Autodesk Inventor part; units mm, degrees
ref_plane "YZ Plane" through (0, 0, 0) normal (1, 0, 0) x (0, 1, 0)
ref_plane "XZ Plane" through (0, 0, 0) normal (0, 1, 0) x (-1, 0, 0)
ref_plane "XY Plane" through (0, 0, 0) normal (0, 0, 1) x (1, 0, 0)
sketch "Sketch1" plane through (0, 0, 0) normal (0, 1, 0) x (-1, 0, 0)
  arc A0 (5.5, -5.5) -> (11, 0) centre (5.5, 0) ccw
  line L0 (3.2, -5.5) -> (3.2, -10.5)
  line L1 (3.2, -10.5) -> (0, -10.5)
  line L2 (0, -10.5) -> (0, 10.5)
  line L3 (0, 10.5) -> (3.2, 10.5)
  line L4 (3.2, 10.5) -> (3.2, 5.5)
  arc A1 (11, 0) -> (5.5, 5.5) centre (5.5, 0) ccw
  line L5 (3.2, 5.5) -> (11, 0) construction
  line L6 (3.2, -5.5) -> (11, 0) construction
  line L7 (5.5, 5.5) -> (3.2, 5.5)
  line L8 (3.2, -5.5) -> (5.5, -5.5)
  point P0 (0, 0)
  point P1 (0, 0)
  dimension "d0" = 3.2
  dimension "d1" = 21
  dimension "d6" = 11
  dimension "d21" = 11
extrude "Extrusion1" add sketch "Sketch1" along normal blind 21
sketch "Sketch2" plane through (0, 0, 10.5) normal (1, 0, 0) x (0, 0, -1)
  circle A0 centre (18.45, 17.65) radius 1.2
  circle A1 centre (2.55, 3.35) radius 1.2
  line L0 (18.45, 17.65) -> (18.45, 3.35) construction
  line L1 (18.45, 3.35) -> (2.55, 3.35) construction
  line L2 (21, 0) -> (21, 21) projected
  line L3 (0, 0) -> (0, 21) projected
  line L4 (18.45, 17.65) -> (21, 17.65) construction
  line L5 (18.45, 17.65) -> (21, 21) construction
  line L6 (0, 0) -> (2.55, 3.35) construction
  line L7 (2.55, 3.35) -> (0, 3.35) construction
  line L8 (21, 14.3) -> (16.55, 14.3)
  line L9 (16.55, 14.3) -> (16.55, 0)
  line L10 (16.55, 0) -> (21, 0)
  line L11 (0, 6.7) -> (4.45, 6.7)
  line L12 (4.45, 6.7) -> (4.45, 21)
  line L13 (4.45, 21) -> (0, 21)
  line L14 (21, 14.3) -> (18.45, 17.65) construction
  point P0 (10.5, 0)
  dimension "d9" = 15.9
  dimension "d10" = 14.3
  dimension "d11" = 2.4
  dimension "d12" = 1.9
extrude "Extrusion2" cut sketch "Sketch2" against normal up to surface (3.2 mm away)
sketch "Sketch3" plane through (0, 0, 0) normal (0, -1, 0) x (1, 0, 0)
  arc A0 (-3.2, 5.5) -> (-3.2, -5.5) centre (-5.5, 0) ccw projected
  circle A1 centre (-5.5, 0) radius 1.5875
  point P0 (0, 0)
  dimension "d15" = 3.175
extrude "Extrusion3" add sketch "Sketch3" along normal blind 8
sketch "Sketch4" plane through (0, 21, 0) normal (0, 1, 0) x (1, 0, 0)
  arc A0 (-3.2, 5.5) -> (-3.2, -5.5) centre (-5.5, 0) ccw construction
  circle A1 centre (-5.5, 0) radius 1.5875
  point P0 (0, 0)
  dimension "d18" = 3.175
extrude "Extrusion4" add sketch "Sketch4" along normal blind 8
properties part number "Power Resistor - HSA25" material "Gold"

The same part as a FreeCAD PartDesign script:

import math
import FreeCAD as App
import Part
import Sketcher
from FreeCAD import Vector

doc = App.newDocument("Part")
body = doc.addObject("PartDesign::Body", "Body")

sketch1 = doc.addObject("Sketcher::SketchObject", "Sketch")
body.addObject(sketch1)
sketch1.AttachmentSupport = (doc.XZ_Plane, [""])
sketch1.MapMode = "FlatFace"
sketch1.addGeometry([
    Part.LineSegment(Vector(-3.2, -5.5, 0), Vector(-5.5, -5.5, 0)),
    Part.ArcOfCircle(Part.Circle(Vector(-5.5, 0, 0), Vector(0, 0, 1), 5.5), math.radians(90), math.radians(270)),
    Part.LineSegment(Vector(-5.5, 5.5, 0), Vector(-3.2, 5.5, 0)),
    Part.LineSegment(Vector(-3.2, 5.5, 0), Vector(-3.2, 10.5, 0)),
    Part.LineSegment(Vector(-3.2, 10.5, 0), Vector(0, 10.5, 0)),
    Part.LineSegment(Vector(0, 10.5, 0), Vector(0, -10.5, 0)),
    Part.LineSegment(Vector(0, -10.5, 0), Vector(-3.2, -10.5, 0)),
    Part.LineSegment(Vector(-3.2, -10.5, 0), Vector(-3.2, -5.5, 0)),
], False)
sketch1.addConstraint([
    Sketcher.Constraint("Tangent", 0, 2, 1, 2),
    Sketcher.Constraint("Tangent", 1, 1, 2, 1),
    Sketcher.Constraint("Coincident", 2, 2, 3, 1),
    Sketcher.Constraint("Coincident", 3, 2, 4, 1),
    Sketcher.Constraint("Coincident", 4, 2, 5, 1),
    Sketcher.Constraint("Coincident", 5, 2, 6, 1),
    Sketcher.Constraint("Coincident", 6, 2, 7, 1),
    Sketcher.Constraint("Coincident", 7, 2, 0, 1),
    Sketcher.Constraint("Horizontal", 0),
    Sketcher.Constraint("Horizontal", 2),
    Sketcher.Constraint("Vertical", 3),
    Sketcher.Constraint("Horizontal", 4),
    Sketcher.Constraint("Vertical", 5),
    Sketcher.Constraint("Horizontal", 6),
    Sketcher.Constraint("Vertical", 7),
    Sketcher.Constraint("Symmetric", 4, 2, 5, 2, -1, 1),
    Sketcher.Constraint("Symmetric", 2, 2, 7, 2, -1),
    Sketcher.Constraint("Radius", 1, 5.5),
    Sketcher.Constraint("DistanceY", 5, 2, 5, 1, 21.0),
    Sketcher.Constraint("DistanceX", 4, 1, 4, 2, 3.2),
    Sketcher.Constraint("DistanceX", 0, 2, 0, 1, 2.3),
])
pad1 = doc.addObject("PartDesign::Pad", "Pad")
body.addObject(pad1)
pad1.Profile = sketch1
pad1.Length = 21
pad1.Reversed = True

sketch2 = doc.addObject("Sketcher::SketchObject", "Sketch001")
body.addObject(sketch2)
sketch2.AttachmentSupport = (doc.YZ_Plane, [""])
sketch2.MapMode = "FlatFace"
sketch2.addGeometry([
    Part.Circle(Vector(17.65, -7.95, 0), Vector(0, 0, 1), 1.2),
    Part.Circle(Vector(3.35, 7.95, 0), Vector(0, 0, 1), 1.2),
    Part.LineSegment(Vector(0, -6.05, 0), Vector(0, -10.5, 0)),
    Part.LineSegment(Vector(0, -10.5, 0), Vector(14.3, -10.5, 0)),
    Part.LineSegment(Vector(14.3, -10.5, 0), Vector(14.3, -6.05, 0)),
    Part.LineSegment(Vector(14.3, -6.05, 0), Vector(0, -6.05, 0)),
    Part.LineSegment(Vector(21, 10.5, 0), Vector(6.7, 10.5, 0)),
    Part.LineSegment(Vector(6.7, 10.5, 0), Vector(6.7, 6.05, 0)),
    Part.LineSegment(Vector(6.7, 6.05, 0), Vector(21, 6.05, 0)),
    Part.LineSegment(Vector(21, 6.05, 0), Vector(21, 10.5, 0)),
], False)
sketch2.addConstraint([
    Sketcher.Constraint("Coincident", 2, 2, 3, 1),
    Sketcher.Constraint("Coincident", 3, 2, 4, 1),
    Sketcher.Constraint("Coincident", 4, 2, 5, 1),
    Sketcher.Constraint("Coincident", 5, 2, 2, 1),
    Sketcher.Constraint("Coincident", 6, 2, 7, 1),
    Sketcher.Constraint("Coincident", 7, 2, 8, 1),
    Sketcher.Constraint("Coincident", 8, 2, 9, 1),
    Sketcher.Constraint("Coincident", 9, 2, 6, 1),
    Sketcher.Constraint("Vertical", 2),
    Sketcher.Constraint("Horizontal", 3),
    Sketcher.Constraint("Vertical", 4),
    Sketcher.Constraint("Horizontal", 5),
    Sketcher.Constraint("Horizontal", 6),
    Sketcher.Constraint("Vertical", 7),
    Sketcher.Constraint("Horizontal", 8),
    Sketcher.Constraint("Vertical", 9),
    Sketcher.Constraint("Equal", 0, 1),
    Sketcher.Constraint("PointOnObject", 2, 2, -2),
    Sketcher.Constraint("Equal", 5, 6),
    Sketcher.Constraint("Equal", 4, 7),
    Sketcher.Constraint("Diameter", 0, 2.4),
    Sketcher.Constraint("DistanceX", 3, 1, 3, 2, 14.3),
    Sketcher.Constraint("DistanceX", 1, 3, 0, 3, 14.3),
    Sketcher.Constraint("DistanceY", 0, 3, 1, 3, 15.9),
    Sketcher.Constraint("DistanceY", 0, 3, 4, 2, 1.9),
    Sketcher.Constraint("DistanceY", 7, 2, 1, 3, 1.9),
    Sketcher.Constraint("DistanceX", -1, 1, 8, 2, 21.0),
    Sketcher.Constraint("DistanceY", 2, 2, 6, 2, 21.0),
    Sketcher.Constraint("DistanceY", 2, 2, -1, 1, 10.5),
    Sketcher.Constraint("DistanceX", -1, 1, 0, 3, 17.65),
])
pocket1 = doc.addObject("PartDesign::Pocket", "Pocket")
body.addObject(pocket1)
pocket1.Profile = sketch2
pocket1.Length = 3.2

sketch3 = doc.addObject("Sketcher::SketchObject", "Sketch002")
body.addObject(sketch3)
sketch3.AttachmentSupport = (doc.XZ_Plane, [""])
sketch3.MapMode = "FlatFace"
sketch3.addGeometry(Part.Circle(Vector(-5.5, 0, 0), Vector(0, 0, 1), 1.5875), False)
sketch3.addConstraint([
    Sketcher.Constraint("PointOnObject", 0, 3, -1),
    Sketcher.Constraint("Diameter", 0, 3.175),
    Sketcher.Constraint("DistanceX", 0, 3, -1, 1, 5.5),
])
pad2 = doc.addObject("PartDesign::Pad", "Pad001")
body.addObject(pad2)
pad2.Profile = sketch3
pad2.Length = 8

sketch4 = doc.addObject("Sketcher::SketchObject", "Sketch003")
body.addObject(sketch4)
sketch4.AttachmentSupport = (doc.XZ_Plane, [""])
sketch4.MapMode = "FlatFace"
sketch4.AttachmentOffset = App.Placement(Vector(0, 0, -21), App.Rotation())
sketch4.addGeometry(Part.Circle(Vector(-5.5, 0, 0), Vector(0, 0, 1), 1.5875), False)
sketch4.addConstraint([
    Sketcher.Constraint("PointOnObject", 0, 3, -1),
    Sketcher.Constraint("Diameter", 0, 3.175),
    Sketcher.Constraint("DistanceX", 0, 3, -1, 1, 5.5),
])
pad3 = doc.addObject("PartDesign::Pad", "Pad002")
body.addObject(pad3)
pad3.Profile = sketch4
pad3.Length = 8
pad3.Reversed = True

doc.recompute()
